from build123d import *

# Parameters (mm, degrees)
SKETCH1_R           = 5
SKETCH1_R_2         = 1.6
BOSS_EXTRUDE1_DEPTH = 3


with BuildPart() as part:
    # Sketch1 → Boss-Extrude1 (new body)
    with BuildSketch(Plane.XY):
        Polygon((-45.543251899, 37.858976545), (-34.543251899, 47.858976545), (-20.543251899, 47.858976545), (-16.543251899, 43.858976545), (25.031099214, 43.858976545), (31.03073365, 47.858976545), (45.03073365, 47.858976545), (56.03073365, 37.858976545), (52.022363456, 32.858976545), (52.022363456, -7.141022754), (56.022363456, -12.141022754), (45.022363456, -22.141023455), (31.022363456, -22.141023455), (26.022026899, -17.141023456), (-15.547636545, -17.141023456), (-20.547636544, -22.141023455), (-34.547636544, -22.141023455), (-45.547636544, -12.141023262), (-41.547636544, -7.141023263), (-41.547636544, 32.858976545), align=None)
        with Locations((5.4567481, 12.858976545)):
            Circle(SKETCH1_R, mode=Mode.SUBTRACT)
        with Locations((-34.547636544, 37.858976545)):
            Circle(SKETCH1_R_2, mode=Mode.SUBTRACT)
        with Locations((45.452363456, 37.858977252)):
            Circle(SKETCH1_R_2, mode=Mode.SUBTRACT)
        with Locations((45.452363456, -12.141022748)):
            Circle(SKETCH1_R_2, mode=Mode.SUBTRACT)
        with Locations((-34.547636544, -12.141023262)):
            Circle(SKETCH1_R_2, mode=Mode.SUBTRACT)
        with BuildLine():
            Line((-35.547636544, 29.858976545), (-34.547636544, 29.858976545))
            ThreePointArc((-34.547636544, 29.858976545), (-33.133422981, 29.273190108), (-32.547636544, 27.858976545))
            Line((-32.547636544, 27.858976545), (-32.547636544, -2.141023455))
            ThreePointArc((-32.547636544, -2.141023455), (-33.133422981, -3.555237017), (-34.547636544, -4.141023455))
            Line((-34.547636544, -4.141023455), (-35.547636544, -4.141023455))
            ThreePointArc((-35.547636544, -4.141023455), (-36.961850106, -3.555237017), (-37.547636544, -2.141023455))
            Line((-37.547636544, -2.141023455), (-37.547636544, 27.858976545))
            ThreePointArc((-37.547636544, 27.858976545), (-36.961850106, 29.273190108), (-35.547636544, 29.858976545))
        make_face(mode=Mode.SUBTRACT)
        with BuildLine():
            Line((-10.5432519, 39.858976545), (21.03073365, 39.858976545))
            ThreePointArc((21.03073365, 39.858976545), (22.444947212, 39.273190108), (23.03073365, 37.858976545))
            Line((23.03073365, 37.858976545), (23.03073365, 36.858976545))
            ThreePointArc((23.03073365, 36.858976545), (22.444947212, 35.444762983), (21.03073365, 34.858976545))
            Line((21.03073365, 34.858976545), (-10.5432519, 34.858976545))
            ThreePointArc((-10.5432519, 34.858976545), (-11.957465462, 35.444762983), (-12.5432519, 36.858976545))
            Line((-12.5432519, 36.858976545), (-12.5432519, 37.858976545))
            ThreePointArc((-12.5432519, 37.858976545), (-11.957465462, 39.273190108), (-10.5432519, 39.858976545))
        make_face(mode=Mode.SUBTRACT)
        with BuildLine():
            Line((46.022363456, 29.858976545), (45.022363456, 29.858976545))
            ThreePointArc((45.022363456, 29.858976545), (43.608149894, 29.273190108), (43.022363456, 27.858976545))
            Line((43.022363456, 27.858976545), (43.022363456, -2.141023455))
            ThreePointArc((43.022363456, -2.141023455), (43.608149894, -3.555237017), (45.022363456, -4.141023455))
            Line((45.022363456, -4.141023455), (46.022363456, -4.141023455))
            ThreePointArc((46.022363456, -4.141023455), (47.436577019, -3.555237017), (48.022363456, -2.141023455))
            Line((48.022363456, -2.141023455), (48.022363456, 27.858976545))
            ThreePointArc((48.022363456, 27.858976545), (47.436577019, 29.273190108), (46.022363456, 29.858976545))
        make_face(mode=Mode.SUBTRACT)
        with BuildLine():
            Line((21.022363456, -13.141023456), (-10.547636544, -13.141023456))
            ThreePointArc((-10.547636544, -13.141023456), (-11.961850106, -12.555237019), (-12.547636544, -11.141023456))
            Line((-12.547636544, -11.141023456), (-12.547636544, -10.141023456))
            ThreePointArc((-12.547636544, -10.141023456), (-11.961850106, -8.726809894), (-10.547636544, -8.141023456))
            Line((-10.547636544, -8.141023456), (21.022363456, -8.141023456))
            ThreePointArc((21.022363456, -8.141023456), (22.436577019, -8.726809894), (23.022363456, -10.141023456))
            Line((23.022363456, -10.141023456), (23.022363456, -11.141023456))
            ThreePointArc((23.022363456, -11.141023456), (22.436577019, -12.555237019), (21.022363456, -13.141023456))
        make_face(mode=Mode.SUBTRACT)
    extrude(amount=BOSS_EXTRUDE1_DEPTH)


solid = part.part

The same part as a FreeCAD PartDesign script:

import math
import FreeCAD as App
import Part
import Sketcher
Q = App.Units.Quantity

doc = App.newDocument("Part")
body = doc.addObject("PartDesign::Body", "Body")

# Sketch on XY plane
sketch1 = body.newObject("Sketcher::SketchObject", "Sketch")
sketch1.AttachmentSupport = (doc.getObject("XY_Plane"), [""])
sketch1.MapMode = "FlatFace"
sketch1.addGeometry([
    Part.LineSegment(App.Vector(-34.5, 47.9, 0), App.Vector(-45.5, 37.9, 0)),  # 0
    Part.LineSegment(App.Vector(-45.5, 37.9, 0), App.Vector(-41.5, 32.9, 0)),  # 1
    Part.LineSegment(App.Vector(-41.5, 32.9, 0), App.Vector(-41.5, -7.1, 0)),  # 2
    Part.LineSegment(App.Vector(-41.5, -7.1, 0), App.Vector(-45.5, -12.1, 0)),  # 3
    Part.LineSegment(App.Vector(-45.5, -12.1, 0), App.Vector(-34.5, -22.1, 0)),  # 4
    Part.LineSegment(App.Vector(-34.5, -22.1, 0), App.Vector(-20.5, -22.1, 0)),  # 5
    Part.LineSegment(App.Vector(-20.5, -22.1, 0), App.Vector(-15.5, -17.1, 0)),  # 6
    Part.LineSegment(App.Vector(-15.5, -17.1, 0), App.Vector(26, -17.1, 0)),  # 7
    Part.LineSegment(App.Vector(26, -17.1, 0), App.Vector(31, -22.1, 0)),  # 8
    Part.LineSegment(App.Vector(31, -22.1, 0), App.Vector(45, -22.1, 0)),  # 9
    Part.LineSegment(App.Vector(45, -22.1, 0), App.Vector(56, -12.1, 0)),  # 10
    Part.LineSegment(App.Vector(56, -12.1, 0), App.Vector(52, -7.1, 0)),  # 11
    Part.LineSegment(App.Vector(52, -7.1, 0), App.Vector(52, 32.9, 0)),  # 12
    Part.LineSegment(App.Vector(52, 32.9, 0), App.Vector(56, 37.9, 0)),  # 13
    Part.LineSegment(App.Vector(56, 37.9, 0), App.Vector(45, 47.9, 0)),  # 14
    Part.LineSegment(App.Vector(45, 47.9, 0), App.Vector(31, 47.9, 0)),  # 15
    Part.LineSegment(App.Vector(31, 47.9, 0), App.Vector(25, 43.9, 0)),  # 16
    Part.LineSegment(App.Vector(25, 43.9, 0), App.Vector(-16.5, 43.9, 0)),  # 17
    Part.LineSegment(App.Vector(-16.5, 43.9, 0), App.Vector(-20.5, 47.9, 0)),  # 18
    Part.LineSegment(App.Vector(-20.5, 47.9, 0), App.Vector(-34.5, 47.9, 0)),  # 19
    Part.Circle(App.Vector(45.5, -12.1, 0), App.Vector(0, 0, 1), 1.6),  # 20
    Part.LineSegment(App.Vector(21, -13.1, 0), App.Vector(-10.5, -13.1, 0)),  # 21
    Part.ArcOfCircle(Part.Circle(App.Vector(-10.5, -11.1, 0), App.Vector(0, 0, 1), 2), math.radians(180), math.radians(270)),  # 22
    Part.LineSegment(App.Vector(-12.5, -11.1, 0), App.Vector(-12.5, -10.1, 0)),  # 23
    Part.ArcOfCircle(Part.Circle(App.Vector(-10.5, -10.1, 0), App.Vector(0, 0, 1), 2), math.radians(90), math.radians(180)),  # 24
    Part.LineSegment(App.Vector(-10.5, -8.1, 0), App.Vector(21, -8.1, 0)),  # 25
    Part.ArcOfCircle(Part.Circle(App.Vector(21, -10.1, 0), App.Vector(0, 0, 1), 2), math.radians(0), math.radians(90)),  # 26
    Part.LineSegment(App.Vector(23, -10.1, 0), App.Vector(23, -11.1, 0)),  # 27
    Part.ArcOfCircle(Part.Circle(App.Vector(21, -11.1, 0), App.Vector(0, 0, 1), 2), math.radians(-90), math.radians(0)),  # 28
    Part.ArcOfCircle(Part.Circle(App.Vector(46, 27.9, 0), App.Vector(0, 0, 1), 2), math.radians(0), math.radians(90)),  # 29
    Part.LineSegment(App.Vector(48, 27.9, 0), App.Vector(48, -2.1, 0)),  # 30
    Part.ArcOfCircle(Part.Circle(App.Vector(46, -2.1, 0), App.Vector(0, 0, 1), 2), math.radians(-90), math.radians(0)),  # 31
    Part.LineSegment(App.Vector(46, -4.1, 0), App.Vector(45, -4.1, 0)),  # 32
    Part.ArcOfCircle(Part.Circle(App.Vector(45, -2.1, 0), App.Vector(0, 0, 1), 2), math.radians(-180), math.radians(-90)),  # 33
    Part.LineSegment(App.Vector(43, -2.1, 0), App.Vector(43, 27.9, 0)),  # 34
    Part.ArcOfCircle(Part.Circle(App.Vector(45, 27.9, 0), App.Vector(0, 0, 1), 2), math.radians(90), math.radians(180)),  # 35
    Part.LineSegment(App.Vector(45, 29.9, 0), App.Vector(46, 29.9, 0)),  # 36
    Part.Circle(App.Vector(5.5, 12.9, 0), App.Vector(0, 0, 1), 5),  # 37
    Part.Circle(App.Vector(-34.5, -12.1, 0), App.Vector(0, 0, 1), 1.6),  # 38
    Part.LineSegment(App.Vector(-35.5, 29.9, 0), App.Vector(-34.5, 29.9, 0)),  # 39
    Part.ArcOfCircle(Part.Circle(App.Vector(-34.5, 27.9, 0), App.Vector(0, 0, 1), 2), math.radians(0), math.radians(90)),  # 40
    Part.LineSegment(App.Vector(-32.5, 27.9, 0), App.Vector(-32.5, -2.1, 0)),  # 41
    Part.ArcOfCircle(Part.Circle(App.Vector(-34.5, -2.1, 0), App.Vector(0, 0, 1), 2), math.radians(-90), math.radians(0)),  # 42
    Part.LineSegment(App.Vector(-34.5, -4.1, 0), App.Vector(-35.5, -4.1, 0)),  # 43
    Part.ArcOfCircle(Part.Circle(App.Vector(-35.5, -2.1, 0), App.Vector(0, 0, 1), 2), math.radians(-180), math.radians(-90)),  # 44
    Part.LineSegment(App.Vector(-37.5, -2.1, 0), App.Vector(-37.5, 27.9, 0)),  # 45
    Part.ArcOfCircle(Part.Circle(App.Vector(-35.5, 27.9, 0), App.Vector(0, 0, 1), 2), math.radians(90), math.radians(180)),  # 46
    Part.Circle(App.Vector(45.5, 37.9, 0), App.Vector(0, 0, 1), 1.6),  # 47
    Part.LineSegment(App.Vector(-10.5, 39.9, 0), App.Vector(21, 39.9, 0)),  # 48
    Part.ArcOfCircle(Part.Circle(App.Vector(21, 37.9, 0), App.Vector(0, 0, 1), 2), math.radians(0), math.radians(90)),  # 49
    Part.LineSegment(App.Vector(23, 37.9, 0), App.Vector(23, 36.9, 0)),  # 50
    Part.ArcOfCircle(Part.Circle(App.Vector(21, 36.9, 0), App.Vector(0, 0, 1), 2), math.radians(-90), math.radians(0)),  # 51
    Part.LineSegment(App.Vector(21, 34.9, 0), App.Vector(-10.5, 34.9, 0)),  # 52
    Part.ArcOfCircle(Part.Circle(App.Vector(-10.5, 36.9, 0), App.Vector(0, 0, 1), 2), math.radians(-180), math.radians(-90)),  # 53
    Part.LineSegment(App.Vector(-12.5, 36.9, 0), App.Vector(-12.5, 37.9, 0)),  # 54
    Part.ArcOfCircle(Part.Circle(App.Vector(-10.5, 37.9, 0), App.Vector(0, 0, 1), 2), math.radians(90), math.radians(180)),  # 55
    Part.Circle(App.Vector(-34.5, 37.9, 0), App.Vector(0, 0, 1), 1.6),  # 56
], False)
sketch1.addConstraint([
    Sketcher.Constraint("Coincident", 0, 2, 1, 1),
    Sketcher.Constraint("Coincident", 1, 2, 2, 1),
    Sketcher.Constraint("Coincident", 2, 2, 3, 1),
    Sketcher.Constraint("Coincident", 3, 2, 4, 1),
    Sketcher.Constraint("Coincident", 4, 2, 5, 1),
    Sketcher.Constraint("Coincident", 5, 2, 6, 1),
    Sketcher.Constraint("Coincident", 6, 2, 7, 1),
    Sketcher.Constraint("Coincident", 7, 2, 8, 1),
    Sketcher.Constraint("Coincident", 8, 2, 9, 1),
    Sketcher.Constraint("Coincident", 9, 2, 10, 1),
    Sketcher.Constraint("Coincident", 10, 2, 11, 1),
    Sketcher.Constraint("Coincident", 11, 2, 12, 1),
    Sketcher.Constraint("Coincident", 12, 2, 13, 1),
    Sketcher.Constraint("Coincident", 13, 2, 14, 1),
    Sketcher.Constraint("Coincident", 14, 2, 15, 1),
    Sketcher.Constraint("Coincident", 15, 2, 16, 1),
    Sketcher.Constraint("Coincident", 16, 2, 17, 1),
    Sketcher.Constraint("Coincident", 17, 2, 18, 1),
    Sketcher.Constraint("Coincident", 18, 2, 19, 1),
    Sketcher.Constraint("Coincident", 19, 2, 0, 1),
    Sketcher.Constraint("Tangent", 21, 2, 22, 2),
    Sketcher.Constraint("Tangent", 22, 1, 23, 1),
    Sketcher.Constraint("Tangent", 23, 2, 24, 2),
    Sketcher.Constraint("Tangent", 24, 1, 25, 1),
    Sketcher.Constraint("Tangent", 25, 2, 26, 2),
    Sketcher.Constraint("Tangent", 26, 1, 27, 1),
    Sketcher.Constraint("Tangent", 27, 2, 28, 2),
    Sketcher.Constraint("Tangent", 28, 1, 21, 1),
    Sketcher.Constraint("Tangent", 29, 1, 30, 1),
    Sketcher.Constraint("Tangent", 30, 2, 31, 2),
    Sketcher.Constraint("Tangent", 31, 1, 32, 1),
    Sketcher.Constraint("Tangent", 32, 2, 33, 2),
    Sketcher.Constraint("Tangent", 33, 1, 34, 1),
    Sketcher.Constraint("Tangent", 34, 2, 35, 2),
    Sketcher.Constraint("Tangent", 35, 1, 36, 1),
    Sketcher.Constraint("Tangent", 36, 2, 29, 2),
    Sketcher.Constraint("Tangent", 39, 2, 40, 2),
    Sketcher.Constraint("Tangent", 40, 1, 41, 1),
    Sketcher.Constraint("Tangent", 41, 2, 42, 2),
    Sketcher.Constraint("Tangent", 42, 1, 43, 1),
    Sketcher.Constraint("Tangent", 43, 2, 44, 2),
    Sketcher.Constraint("Tangent", 44, 1, 45, 1),
    Sketcher.Constraint("Tangent", 45, 2, 46, 2),
    Sketcher.Constraint("Tangent", 46, 1, 39, 1),
    Sketcher.Constraint("Tangent", 48, 2, 49, 2),
    Sketcher.Constraint("Tangent", 49, 1, 50, 1),
    Sketcher.Constraint("Tangent", 50, 2, 51, 2),
    Sketcher.Constraint("Tangent", 51, 1, 52, 1),
    Sketcher.Constraint("Tangent", 52, 2, 53, 2),
    Sketcher.Constraint("Tangent", 53, 1, 54, 1),
    Sketcher.Constraint("Tangent", 54, 2, 55, 2),
    Sketcher.Constraint("Tangent", 55, 1, 48, 1),
    Sketcher.Constraint("Vertical", 2),
    Sketcher.Constraint("Horizontal", 5),
    Sketcher.Constraint("Horizontal", 7),
    Sketcher.Constraint("Horizontal", 9),
    Sketcher.Constraint("Vertical", 12),
    Sketcher.Constraint("Horizontal", 15),
    Sketcher.Constraint("Horizontal", 17),
    Sketcher.Constraint("Horizontal", 19),
    Sketcher.Constraint("Horizontal", 21),
    Sketcher.Constraint("Vertical", 23),
    Sketcher.Constraint("Horizontal", 25),
    Sketcher.Constraint("Vertical", 27),
    Sketcher.Constraint("Vertical", 30),
    Sketcher.Constraint("Horizontal", 32),
    Sketcher.Constraint("Vertical", 34),
    Sketcher.Constraint("Horizontal", 36),
    Sketcher.Constraint("Horizontal", 39),
    Sketcher.Constraint("Vertical", 41),
    Sketcher.Constraint("Horizontal", 43),
    Sketcher.Constraint("Vertical", 45),
    Sketcher.Constraint("Horizontal", 48),
    Sketcher.Constraint("Vertical", 50),
    Sketcher.Constraint("Horizontal", 52),
    Sketcher.Constraint("Vertical", 54),
    Sketcher.Constraint("Equal", 22, 24),
    Sketcher.Constraint("Equal", 24, 26),
    Sketcher.Constraint("Equal", 26, 28),
    Sketcher.Constraint("Equal", 28, 29),
    Sketcher.Constraint("Equal", 29, 31),
    Sketcher.Constraint("Equal", 31, 33),
    Sketcher.Constraint("Equal", 33, 35),
    Sketcher.Constraint("Equal", 20, 38),
    Sketcher.Constraint("Equal", 35, 40),
    Sketcher.Constraint("Equal", 40, 42),
    Sketcher.Constraint("Equal", 42, 44),
    Sketcher.Constraint("Equal", 44, 46),
    Sketcher.Constraint("Equal", 38, 47),
    Sketcher.Constraint("Equal", 46, 49),
    Sketcher.Constraint("Equal", 49, 51),
    Sketcher.Constraint("Equal", 51, 53),
    Sketcher.Constraint("Equal", 53, 55),
    Sketcher.Constraint("Equal", 47, 56),
    Sketcher.Constraint("Parallel", 0, 10),
    Sketcher.Constraint("Parallel", 4, 14),
    Sketcher.Constraint("Perpendicular", 6, 18),
    Sketcher.Constraint("Horizontal", 20, 3, 38, 3),
    Sketcher.Constraint("Horizontal", 35, 3, 40, 3),
    Sketcher.Constraint("Horizontal", 33, 3, 42, 3),
    Sketcher.Constraint("Horizontal", 47, 3, 49, 3),
    Sketcher.Constraint("Horizontal", 55, 3, 56, 3),
    Sketcher.Constraint("Horizontal", 56, 3, 0, 2),
    Sketcher.Constraint("Horizontal", 38, 3, 3, 2),
    Sketcher.Constraint("Horizontal", 5, 2, 8, 2),
    Sketcher.Constraint("Horizontal", 3, 2, 10, 2),
    Sketcher.Constraint("Horizontal", 2, 2, 11, 2),
    Sketcher.Constraint("Horizontal", 1, 2, 12, 2),
    Sketcher.Constraint("Horizontal", 0, 2, 13, 2),
    Sketcher.Constraint("Horizontal", 15, 2, 18, 2),
    Sketcher.Constraint("Vertical", 38, 3, 40, 3),
    Sketcher.Constraint("Vertical", 20, 3, 47, 3),
    Sketcher.Constraint("Vertical", 42, 3, 56, 3),
    Sketcher.Constraint("Vertical", 56, 3, 4, 2),
    Sketcher.Constraint("Vertical", 35, 3, 9, 2),
    Sketcher.Constraint("Equal", 5, 9),
    Sketcher.Constraint("Equal", 9, 15),
    Sketcher.Constraint("Equal", 15, 19),
    Sketcher.Constraint("Equal", 36, 39),
    Sketcher.Constraint("Equal", 43, 23),
    Sketcher.Constraint("Equal", 27, 50),
    Sketcher.Constraint("Equal", 0, 4),
    Sketcher.Constraint("Equal", 4, 10),
    Sketcher.Constraint("Equal", 3, 11),
    Sketcher.Constraint("Diameter", 37, Q("10 mm")),
    Sketcher.Constraint("Radius", 22, Q("2 mm")),
    Sketcher.Constraint("Diameter", 20, Q("3.2 mm")),
    Sketcher.Constraint("DistanceX", 5, 1, 5, 2, Q("14 mm")),
    Sketcher.Constraint("DistanceX", 32, 2, 32, 1, Q("1 mm")),
    Sketcher.Constraint("DistanceY", 2, 2, 2, 1, Q("40 mm")),
    Sketcher.Constraint("DistanceY", 30, 2, 30, 1, Q("30 mm")),
    Sketcher.Constraint("Angle", 6, Q("45 deg")),
    Sketcher.Constraint("DistanceX", 21, 2, 21, 1, Q("31.57 mm")),
    Sketcher.Constraint("Distance", 16, Q("7.210798 mm")),
    Sketcher.Constraint("DistanceX", 17, 2, 17, 1, Q("41.574351 mm")),
    Sketcher.Constraint("DistanceX", -1, 1, 16, 2, Q("25.031099 mm")),
    Sketcher.Constraint("Distance", 0, Q("14.866069 mm")),
    Sketcher.Constraint("DistanceX", 7, 1, 7, 2, Q("41.569663 mm")),
    Sketcher.Constraint("DistanceX", 48, 1, 48, 2, Q("31.573986 mm")),
    Sketcher.Constraint("DistanceX", -1, 1, 37, 3, Q("5.456748 mm")),
    Sketcher.Constraint("DistanceX", 53, 3, -1, 1, Q("10.543252 mm")),
    Sketcher.Constraint("DistanceX", 0, 2, -1, 1, Q("45.543252 mm")),
    Sketcher.Constraint("DistanceX", 18, 2, -1, 1, Q("20.543252 mm")),
    Sketcher.Constraint("Distance", 1, Q("6.400386 mm")),
    Sketcher.Constraint("Distance", 3, Q("6.403124 mm")),
    Sketcher.Constraint("Distance", 6, Q("7.071068 mm")),
    Sketcher.Constraint("Distance", 8, Q("7.071306 mm")),
    Sketcher.Constraint("Distance", 13, Q("6.408356 mm")),
    Sketcher.Constraint("DistanceX", -1, 1, 20, 3, Q("45.452363 mm")),
    Sketcher.Constraint("DistanceY", 20, 3, -1, 1, Q("12.141023 mm")),
    Sketcher.Constraint("DistanceX", 22, 3, -1, 1, Q("10.547637 mm")),
    Sketcher.Constraint("DistanceY", 22, 3, -1, 1, Q("11.141023 mm")),
    Sketcher.Constraint("DistanceY", -1, 1, 29, 3, Q("27.858977 mm")),
    Sketcher.Constraint("DistanceY", -1, 1, 37, 3, Q("12.858977 mm")),
    Sketcher.Constraint("DistanceY", -1, 1, 47, 3, Q("37.858977 mm")),
])
pad1 = body.newObject("PartDesign::Pad", "Pad")
pad1.Profile = sketch1
pad1.Length = 3

doc.recompute()
